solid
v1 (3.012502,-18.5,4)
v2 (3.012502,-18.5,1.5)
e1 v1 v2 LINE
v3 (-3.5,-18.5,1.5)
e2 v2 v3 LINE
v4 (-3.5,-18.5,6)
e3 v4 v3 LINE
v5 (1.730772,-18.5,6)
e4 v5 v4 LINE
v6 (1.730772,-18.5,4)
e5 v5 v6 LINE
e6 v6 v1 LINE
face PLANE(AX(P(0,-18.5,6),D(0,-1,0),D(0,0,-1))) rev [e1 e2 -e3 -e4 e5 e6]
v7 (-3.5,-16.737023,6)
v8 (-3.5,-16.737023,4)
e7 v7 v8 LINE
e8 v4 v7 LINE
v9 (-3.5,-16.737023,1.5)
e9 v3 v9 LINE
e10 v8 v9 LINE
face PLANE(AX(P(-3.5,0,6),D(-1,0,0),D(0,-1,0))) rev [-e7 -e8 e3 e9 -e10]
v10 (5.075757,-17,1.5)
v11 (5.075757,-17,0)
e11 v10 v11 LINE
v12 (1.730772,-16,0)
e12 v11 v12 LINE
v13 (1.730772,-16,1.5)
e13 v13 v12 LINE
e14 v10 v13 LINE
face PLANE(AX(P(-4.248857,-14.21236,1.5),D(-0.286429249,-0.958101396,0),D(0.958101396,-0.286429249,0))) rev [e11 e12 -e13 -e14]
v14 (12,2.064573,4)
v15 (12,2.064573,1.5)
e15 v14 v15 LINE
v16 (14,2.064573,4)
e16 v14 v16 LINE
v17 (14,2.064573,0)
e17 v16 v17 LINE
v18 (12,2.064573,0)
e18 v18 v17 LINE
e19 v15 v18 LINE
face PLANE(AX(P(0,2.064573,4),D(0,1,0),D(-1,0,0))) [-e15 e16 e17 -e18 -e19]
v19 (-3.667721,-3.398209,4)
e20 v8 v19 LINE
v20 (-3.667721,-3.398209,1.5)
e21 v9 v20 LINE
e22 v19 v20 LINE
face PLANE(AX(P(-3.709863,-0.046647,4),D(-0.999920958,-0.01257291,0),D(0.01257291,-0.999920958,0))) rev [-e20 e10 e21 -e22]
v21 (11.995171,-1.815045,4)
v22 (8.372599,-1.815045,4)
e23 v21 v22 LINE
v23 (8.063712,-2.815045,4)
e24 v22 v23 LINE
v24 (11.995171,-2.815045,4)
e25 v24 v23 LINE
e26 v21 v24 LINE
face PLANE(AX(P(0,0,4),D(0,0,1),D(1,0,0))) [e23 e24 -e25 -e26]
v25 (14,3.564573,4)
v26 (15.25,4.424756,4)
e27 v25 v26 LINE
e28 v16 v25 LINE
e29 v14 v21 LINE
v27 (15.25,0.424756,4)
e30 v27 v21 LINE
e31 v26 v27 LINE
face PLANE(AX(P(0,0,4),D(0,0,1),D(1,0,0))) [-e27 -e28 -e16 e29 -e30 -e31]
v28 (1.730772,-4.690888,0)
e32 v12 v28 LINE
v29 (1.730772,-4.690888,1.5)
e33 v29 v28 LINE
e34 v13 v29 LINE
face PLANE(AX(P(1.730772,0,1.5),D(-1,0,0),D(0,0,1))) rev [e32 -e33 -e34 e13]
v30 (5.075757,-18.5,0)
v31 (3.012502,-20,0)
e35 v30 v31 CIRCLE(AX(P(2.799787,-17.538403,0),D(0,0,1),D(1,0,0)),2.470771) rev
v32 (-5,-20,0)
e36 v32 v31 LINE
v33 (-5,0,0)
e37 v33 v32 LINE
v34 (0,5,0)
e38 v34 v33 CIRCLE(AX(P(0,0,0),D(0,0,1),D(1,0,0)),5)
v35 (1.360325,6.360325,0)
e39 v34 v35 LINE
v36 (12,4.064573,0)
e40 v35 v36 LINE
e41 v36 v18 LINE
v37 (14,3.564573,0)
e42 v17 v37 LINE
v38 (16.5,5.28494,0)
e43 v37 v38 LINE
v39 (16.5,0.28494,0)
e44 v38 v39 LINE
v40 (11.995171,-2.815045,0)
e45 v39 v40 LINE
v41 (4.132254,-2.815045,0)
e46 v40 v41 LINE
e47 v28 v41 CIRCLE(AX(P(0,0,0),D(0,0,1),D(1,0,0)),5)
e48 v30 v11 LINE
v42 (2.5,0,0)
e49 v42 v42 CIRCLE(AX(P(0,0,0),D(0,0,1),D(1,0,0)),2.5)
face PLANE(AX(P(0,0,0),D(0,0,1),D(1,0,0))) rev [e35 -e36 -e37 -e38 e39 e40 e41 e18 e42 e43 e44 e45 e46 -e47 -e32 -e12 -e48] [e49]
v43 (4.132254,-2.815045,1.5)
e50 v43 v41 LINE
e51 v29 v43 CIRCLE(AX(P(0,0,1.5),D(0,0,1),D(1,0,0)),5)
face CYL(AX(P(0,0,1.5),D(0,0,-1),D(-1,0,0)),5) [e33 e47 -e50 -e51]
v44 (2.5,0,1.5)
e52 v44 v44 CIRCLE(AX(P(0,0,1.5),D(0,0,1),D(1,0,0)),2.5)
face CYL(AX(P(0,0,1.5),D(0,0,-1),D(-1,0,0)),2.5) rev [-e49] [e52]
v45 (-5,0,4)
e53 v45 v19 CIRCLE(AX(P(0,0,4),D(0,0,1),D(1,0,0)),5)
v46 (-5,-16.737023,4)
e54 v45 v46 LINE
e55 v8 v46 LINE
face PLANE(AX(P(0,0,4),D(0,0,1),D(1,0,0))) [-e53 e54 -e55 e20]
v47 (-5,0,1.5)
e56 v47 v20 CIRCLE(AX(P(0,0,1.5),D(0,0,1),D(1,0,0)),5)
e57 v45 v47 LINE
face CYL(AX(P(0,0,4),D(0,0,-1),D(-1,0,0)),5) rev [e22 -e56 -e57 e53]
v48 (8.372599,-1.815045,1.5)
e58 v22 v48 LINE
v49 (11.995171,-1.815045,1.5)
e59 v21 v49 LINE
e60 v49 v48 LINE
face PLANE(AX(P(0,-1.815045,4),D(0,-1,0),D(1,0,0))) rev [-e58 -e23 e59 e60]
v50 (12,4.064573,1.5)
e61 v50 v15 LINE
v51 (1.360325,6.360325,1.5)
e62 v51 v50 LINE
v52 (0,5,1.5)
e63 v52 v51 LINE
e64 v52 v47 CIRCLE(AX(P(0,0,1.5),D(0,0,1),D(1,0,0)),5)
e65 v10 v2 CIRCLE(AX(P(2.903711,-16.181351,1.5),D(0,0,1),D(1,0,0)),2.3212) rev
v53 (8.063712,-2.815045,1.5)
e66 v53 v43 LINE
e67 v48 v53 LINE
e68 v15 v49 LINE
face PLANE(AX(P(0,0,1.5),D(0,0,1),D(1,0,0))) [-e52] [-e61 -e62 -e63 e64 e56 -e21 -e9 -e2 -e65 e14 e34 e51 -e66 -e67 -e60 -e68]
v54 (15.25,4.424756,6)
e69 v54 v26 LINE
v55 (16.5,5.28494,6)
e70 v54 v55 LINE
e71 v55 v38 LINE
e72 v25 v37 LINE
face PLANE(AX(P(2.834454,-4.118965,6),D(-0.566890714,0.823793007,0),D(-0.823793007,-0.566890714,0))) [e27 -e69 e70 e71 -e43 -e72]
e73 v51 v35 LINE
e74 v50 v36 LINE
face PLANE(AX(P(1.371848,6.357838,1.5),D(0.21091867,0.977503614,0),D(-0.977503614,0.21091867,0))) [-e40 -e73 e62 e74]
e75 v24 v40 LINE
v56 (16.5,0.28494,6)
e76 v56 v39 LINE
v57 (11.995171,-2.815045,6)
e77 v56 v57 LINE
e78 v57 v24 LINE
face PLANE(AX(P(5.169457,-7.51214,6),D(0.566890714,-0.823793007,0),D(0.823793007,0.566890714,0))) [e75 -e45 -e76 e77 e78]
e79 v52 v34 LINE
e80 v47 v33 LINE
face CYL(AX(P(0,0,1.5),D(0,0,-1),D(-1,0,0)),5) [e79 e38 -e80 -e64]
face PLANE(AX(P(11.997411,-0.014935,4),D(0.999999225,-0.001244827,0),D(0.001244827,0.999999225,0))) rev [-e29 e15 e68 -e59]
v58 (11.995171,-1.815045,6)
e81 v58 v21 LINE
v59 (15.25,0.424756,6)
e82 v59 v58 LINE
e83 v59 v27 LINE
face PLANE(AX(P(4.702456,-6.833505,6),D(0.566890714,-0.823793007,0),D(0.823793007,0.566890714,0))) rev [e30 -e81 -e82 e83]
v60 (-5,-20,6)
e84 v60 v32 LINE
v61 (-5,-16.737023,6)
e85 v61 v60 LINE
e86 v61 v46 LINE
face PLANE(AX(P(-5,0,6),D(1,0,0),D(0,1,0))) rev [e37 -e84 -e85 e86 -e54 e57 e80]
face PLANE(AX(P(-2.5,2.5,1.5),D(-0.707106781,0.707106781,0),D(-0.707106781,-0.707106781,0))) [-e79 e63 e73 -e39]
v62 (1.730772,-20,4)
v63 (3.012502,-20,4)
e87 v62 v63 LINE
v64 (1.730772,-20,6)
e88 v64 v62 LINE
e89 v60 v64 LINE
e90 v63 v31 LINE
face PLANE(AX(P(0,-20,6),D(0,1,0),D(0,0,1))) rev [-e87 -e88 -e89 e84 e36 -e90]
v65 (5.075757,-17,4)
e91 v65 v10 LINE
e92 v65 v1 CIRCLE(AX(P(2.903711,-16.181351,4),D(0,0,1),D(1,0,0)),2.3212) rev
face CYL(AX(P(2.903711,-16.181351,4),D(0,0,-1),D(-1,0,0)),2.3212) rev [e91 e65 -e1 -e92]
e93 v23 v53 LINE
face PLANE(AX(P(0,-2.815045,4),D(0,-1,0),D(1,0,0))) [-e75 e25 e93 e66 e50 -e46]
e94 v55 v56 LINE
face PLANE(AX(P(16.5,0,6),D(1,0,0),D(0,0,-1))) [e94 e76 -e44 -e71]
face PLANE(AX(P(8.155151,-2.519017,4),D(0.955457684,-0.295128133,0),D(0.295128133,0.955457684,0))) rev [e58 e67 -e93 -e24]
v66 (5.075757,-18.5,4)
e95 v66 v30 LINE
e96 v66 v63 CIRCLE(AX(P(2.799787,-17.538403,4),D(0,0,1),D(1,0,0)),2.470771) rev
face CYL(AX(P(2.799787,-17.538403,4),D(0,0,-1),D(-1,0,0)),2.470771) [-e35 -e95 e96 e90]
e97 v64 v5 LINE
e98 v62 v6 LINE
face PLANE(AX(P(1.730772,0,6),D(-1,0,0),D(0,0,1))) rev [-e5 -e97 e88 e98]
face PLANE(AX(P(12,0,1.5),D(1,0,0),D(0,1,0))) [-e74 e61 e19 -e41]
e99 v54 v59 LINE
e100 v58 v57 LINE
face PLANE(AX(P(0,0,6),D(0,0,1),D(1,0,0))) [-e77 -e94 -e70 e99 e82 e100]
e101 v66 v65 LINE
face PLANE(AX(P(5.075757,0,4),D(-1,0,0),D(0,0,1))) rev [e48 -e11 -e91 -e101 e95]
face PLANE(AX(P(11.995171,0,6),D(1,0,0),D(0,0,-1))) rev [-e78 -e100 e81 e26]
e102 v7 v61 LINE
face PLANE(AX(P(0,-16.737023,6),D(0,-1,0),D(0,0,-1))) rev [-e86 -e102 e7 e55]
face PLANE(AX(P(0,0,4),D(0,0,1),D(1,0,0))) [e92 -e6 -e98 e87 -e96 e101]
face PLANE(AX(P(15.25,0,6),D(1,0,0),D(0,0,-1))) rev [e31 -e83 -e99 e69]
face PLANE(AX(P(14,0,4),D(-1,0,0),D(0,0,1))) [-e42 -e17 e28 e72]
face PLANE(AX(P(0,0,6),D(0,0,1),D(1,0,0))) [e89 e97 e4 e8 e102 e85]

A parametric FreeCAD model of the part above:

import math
import FreeCAD as App
import Part
import Sketcher
from FreeCAD import Vector
Q = App.Units.Quantity

doc = App.newDocument("Part")
params = doc.addObject("Spreadsheet::Sheet", "Params")
for row, (alias, value) in enumerate([
    ("sketch1_width", "1.5 mm"),
    ("pad1_length", "6 mm"),
    ("sketch2_height", "1 mm"),
    ("sketch2_height2", "5 mm"),
    ("pad2_length", "6 mm"),
    ("sketch3_radius", "5 mm"),
    ("sketch3_width", "2 mm"),
    ("sketch3_height", "4 mm"),
    ("sketch3_height2", "1 mm"),
    ("sketch3_width2", "1.5 mm"),
    ("pad3_length", "4 mm"),
    ("sketch4_diameter", "5 mm"),
    ("sketch4_radius", "5 mm"),
    ("sketch4_height", "2 mm"),
    ("pad4_length", "1.5 mm"),
], start=1):
    params.set(f"A{row}", alias)
    params.set(f"B{row}", "=" + value)
    params.setAlias(f"B{row}", alias)

body = doc.addObject("PartDesign::Body", "Body")

sketch1 = doc.addObject("Sketcher::SketchObject", "Sketch")
body.addObject(sketch1)
sketch1.AttachmentSupport = (doc.XY_Plane, [""])
sketch1.MapMode = "FlatFace"
sketch1.addGeometry([
    Part.LineSegment(Vector(-3.5, -16.7, 0), Vector(-5, -16.7, 0)),
    Part.LineSegment(Vector(-5, -16.7, 0), Vector(-5, -20, 0)),
    Part.LineSegment(Vector(-5, -20, 0), Vector(1.7, -20, 0)),
    Part.LineSegment(Vector(1.7, -20, 0), Vector(1.7, -18.5, 0)),
    Part.LineSegment(Vector(1.7, -18.5, 0), Vector(-3.5, -18.5, 0)),
    Part.LineSegment(Vector(-3.5, -18.5, 0), Vector(-3.5, -16.7, 0)),
], False)
sketch1.addConstraint([
    Sketcher.Constraint("Coincident", 0, 2, 1, 1),
    Sketcher.Constraint("Coincident", 1, 2, 2, 1),
    Sketcher.Constraint("Coincident", 2, 2, 3, 1),
    Sketcher.Constraint("Coincident", 3, 2, 4, 1),
    Sketcher.Constraint("Coincident", 4, 2, 5, 1),
    Sketcher.Constraint("Coincident", 5, 2, 0, 1),
    Sketcher.Constraint("Horizontal", 0),
    Sketcher.Constraint("Vertical", 1),
    Sketcher.Constraint("Horizontal", 2),
    Sketcher.Constraint("Vertical", 3),
    Sketcher.Constraint("Horizontal", 4),
    Sketcher.Constraint("Vertical", 5),
    Sketcher.Constraint("Equal", 0, 3),
    Sketcher.Constraint("DistanceX", 0, 2, 0, 1, Q("1.5 mm")),
    Sketcher.Constraint("DistanceX", 0, 2, -1, 1, Q("5 mm")),
    Sketcher.Constraint("DistanceY", 1, 2, -1, 1, Q("20 mm")),
    Sketcher.Constraint("DistanceX", 2, 1, 2, 2, Q("6.730772 mm")),
    Sketcher.Constraint("DistanceY", 1, 2, 1, 1, Q("3.262977 mm")),
])
sketch1.setExpression("Constraints[13]", "Params.sketch1_width")
pad1 = doc.addObject("PartDesign::Pad", "Pad")
body.addObject(pad1)
pad1.Profile = sketch1
pad1.setExpression("Length", "Params.pad1_length")
body2 = doc.addObject("PartDesign::Body", "Body001")

sketch2 = doc.addObject("Sketcher::SketchObject", "Sketch001")
body2.addObject(sketch2)
sketch2.AttachmentSupport = (doc.getObject("XY_Plane001"), [""])
sketch2.MapMode = "FlatFace"
sketch2.addGeometry([
    Part.LineSegment(Vector(15.2, 0.4, 0), Vector(12, -1.8, 0)),
    Part.LineSegment(Vector(12, -1.8, 0), Vector(12, -2.8, 0)),
    Part.LineSegment(Vector(12, -2.8, 0), Vector(16.5, 0.3, 0)),
    Part.LineSegment(Vector(16.5, 0.3, 0), Vector(16.5, 5.3, 0)),
    Part.LineSegment(Vector(16.5, 5.3, 0), Vector(15.2, 4.4, 0)),
    Part.LineSegment(Vector(15.2, 4.4, 0), Vector(15.2, 0.4, 0)),
], False)
sketch2.addConstraint([
    Sketcher.Constraint("Coincident", 0, 2, 1, 1),
    Sketcher.Constraint("Coincident", 1, 2, 2, 1),
    Sketcher.Constraint("Coincident", 2, 2, 3, 1),
    Sketcher.Constraint("Coincident", 3, 2, 4, 1),
    Sketcher.Constraint("Coincident", 4, 2, 5, 1),
    Sketcher.Constraint("Coincident", 5, 2, 0, 1),
    Sketcher.Constraint("Vertical", 1),
    Sketcher.Constraint("Vertical", 3),
    Sketcher.Constraint("Vertical", 5),
    Sketcher.Constraint("Parallel", 0, 2),
    Sketcher.Constraint("Parallel", 2, 4),
    Sketcher.Constraint("DistanceY", 1, 2, 1, 1, Q("1 mm")),
    Sketcher.Constraint("DistanceY", 3, 1, 3, 2, Q("5 mm")),
    Sketcher.Constraint("DistanceX", -1, 1, 2, 2, Q("16.5 mm")),
    Sketcher.Constraint("DistanceX", -1, 1, 4, 2, Q("15.25 mm")),
    Sketcher.Constraint("Distance", 2, Q("5.4684 mm")),
    Sketcher.Constraint("DistanceY", 0, 2, 4, 2, Q("6.239801 mm")),
    Sketcher.Constraint("DistanceY", -1, 1, 2, 2, Q("0.28494 mm")),
])
sketch2.setExpression("Constraints[11]", "Params.sketch2_height")
sketch2.setExpression("Constraints[12]", "Params.sketch2_height2")
pad2 = doc.addObject("PartDesign::Pad", "Pad001")
body2.addObject(pad2)
pad2.Profile = sketch2
pad2.setExpression("Length", "Params.pad2_length")
body.AllowCompound = True
doc.recompute()

boolean = doc.addObject("PartDesign::Boolean", "Boolean")
body.addObject(boolean)
boolean.Type = "Fuse"
boolean.addObjects([body2])

sketch3 = doc.addObject("Sketcher::SketchObject", "Sketch002")
body.addObject(sketch3)
sketch3.AttachmentSupport = (doc.XY_Plane, [""])
sketch3.MapMode = "FlatFace"
sketch3.addGeometry([
    Part.ArcOfCircle(Part.Circle(Vector(0, 0, 0), Vector(0, 0, 1), 5), math.radians(180), math.radians(223)),
    Part.LineSegment(Vector(-5, 0, 0), Vector(-5, -16.7, 0)),
    Part.LineSegment(Vector(-5, -16.7, 0), Vector(-3.5, -16.7, 0)),
    Part.LineSegment(Vector(-3.5, -16.7, 0), Vector(-3.7, -3.4, 0)),
    Part.LineSegment(Vector(1.7, -18.5, 0), Vector(1.7, -20, 0)),
    Part.LineSegment(Vector(1.7, -20, 0), Vector(3, -20, 0)),
    Part.ArcOfCircle(Part.Circle(Vector(2.8, -17.5, 0), Vector(0, 0, 1), 2.5), math.radians(-85), math.radians(-23)),
    Part.LineSegment(Vector(5.1, -18.5, 0), Vector(5.1, -17, 0)),
    Part.ArcOfCircle(Part.Circle(Vector(2.9, -16.2, 0), Vector(0, 0, 1), 2.3), math.radians(-87), math.radians(-21)),
    Part.LineSegment(Vector(3, -18.5, 0), Vector(1.7, -18.5, 0)),
    Part.LineSegment(Vector(14, 2.1, 0), Vector(12, 2.1, 0)),
    Part.LineSegment(Vector(12, 2.1, 0), Vector(12, -1.8, 0)),
    Part.LineSegment(Vector(12, -1.8, 0), Vector(15.2, 0.4, 0)),
    Part.LineSegment(Vector(15.2, 0.4, 0), Vector(15.2, 4.4, 0)),
    Part.LineSegment(Vector(15.2, 4.4, 0), Vector(14, 3.6, 0)),
    Part.LineSegment(Vector(14, 3.6, 0), Vector(14, 2.1, 0)),
    Part.LineSegment(Vector(8.4, -1.8, 0), Vector(8.1, -2.8, 0)),
    Part.LineSegment(Vector(8.1, -2.8, 0), Vector(12, -2.8, 0)),
    Part.LineSegment(Vector(12, -2.8, 0), Vector(12, -1.8, 0)),
    Part.LineSegment(Vector(12, -1.8, 0), Vector(8.4, -1.8, 0)),
], False)
sketch3.addConstraint([
    Sketcher.Constraint("Tangent", 0, 1, 1, 1),
    Sketcher.Constraint("Coincident", 1, 2, 2, 1),
    Sketcher.Constraint("Coincident", 2, 2, 3, 1),
    Sketcher.Constraint("Coincident", 3, 2, 0, 2),
    Sketcher.Constraint("Coincident", 4, 2, 5, 1),
    Sketcher.Constraint("Coincident", 5, 2, 6, 1),
    Sketcher.Constraint("Coincident", 6, 2, 7, 1),
    Sketcher.Constraint("Coincident", 7, 2, 8, 2),
    Sketcher.Constraint("Coincident", 8, 1, 9, 1),
    Sketcher.Constraint("Coincident", 9, 2, 4, 1),
    Sketcher.Constraint("Coincident", 10, 2, 11, 1),
    Sketcher.Constraint("Coincident", 11, 2, 12, 1),
    Sketcher.Constraint("Coincident", 12, 2, 13, 1),
    Sketcher.Constraint("Coincident", 13, 2, 14, 1),
    Sketcher.Constraint("Coincident", 14, 2, 15, 1),
    Sketcher.Constraint("Coincident", 15, 2, 10, 1),
    Sketcher.Constraint("Coincident", 16, 2, 17, 1),
    Sketcher.Constraint("Coincident", 17, 2, 18, 1),
    Sketcher.Constraint("Coincident", 18, 2, 19, 1),
    Sketcher.Constraint("Coincident", 19, 2, 16, 1),
    Sketcher.Constraint("Vertical", 1),
    Sketcher.Constraint("Horizontal", 2),
    Sketcher.Constraint("Vertical", 4),
    Sketcher.Constraint("Horizontal", 5),
    Sketcher.Constraint("Vertical", 7),
    Sketcher.Constraint("Horizontal", 9),
    Sketcher.Constraint("Horizontal", 10),
    Sketcher.Constraint("Vertical", 13),
    Sketcher.Constraint("Vertical", 15),
    Sketcher.Constraint("Horizontal", 17),
    Sketcher.Constraint("Vertical", 18),
    Sketcher.Constraint("Horizontal", 19),
    Sketcher.Constraint("Coincident", 0, 3, -1, 1),
    Sketcher.Constraint("Coincident", 18, 2, 11, 2),
    Sketcher.Constraint("Parallel", 12, 14),
    Sketcher.Constraint("Horizontal", 6, 2, 8, 1),
    Sketcher.Constraint("Vertical", 5, 2, 8, 1),
    Sketcher.Constraint("Equal", 2, 4),
    Sketcher.Constraint("Equal", 4, 7),
    Sketcher.Constraint("Equal", 7, 15),
    Sketcher.Constraint("Radius", 0, Q("5 mm")),
    Sketcher.Constraint("DistanceX", 10, 2, 10, 1, Q("2 mm")),
    Sketcher.Constraint("DistanceY", 13, 1, 13, 2, Q("4 mm")),
    Sketcher.Constraint("DistanceY", 18, 1, 18, 2, Q("1 mm")),
    Sketcher.Constraint("DistanceX", 2, 1, 2, 2, Q("1.5 mm")),
    Sketcher.Constraint("DistanceY", 4, 2, -1, 1, Q("20 mm")),
    Sketcher.Constraint("DistanceX", -1, 1, 10, 2, Q("12 mm")),
    Sketcher.Constraint("Radius", 8, Q("2.3212 mm")),
    Sketcher.Constraint("DistanceX", -1, 1, 12, 2, Q("15.25 mm")),
    Sketcher.Constraint("Radius", 6, Q("2.470771 mm")),
    Sketcher.Constraint("DistanceX", 5, 1, 5, 2, Q("1.28173 mm")),
    Sketcher.Constraint("DistanceX", 17, 1, 17, 2, Q("3.931458 mm")),
    Sketcher.Constraint("DistanceX", 19, 2, 19, 1, Q("3.622572 mm")),
    Sketcher.Constraint("DistanceX", -1, 1, 5, 2, Q("3.012502 mm")),
    Sketcher.Constraint("DistanceX", -1, 1, 19, 2, Q("8.372599 mm")),
    Sketcher.Constraint("DistanceY", 11, 2, 12, 2, Q("2.239801 mm")),
    Sketcher.Constraint("Distance", 3, Q("13.339869 mm")),
    Sketcher.Constraint("DistanceY", 1, 2, 1, 1, Q("16.737023 mm")),
    Sketcher.Constraint("DistanceX", -1, 1, 8, 3, Q("2.903711 mm")),
    Sketcher.Constraint("DistanceY", 3, 2, 10, 2, Q("5.462781 mm")),
])
sketch3.setExpression("Constraints[40]", "Params.sketch3_radius")
sketch3.setExpression("Constraints[41]", "Params.sketch3_width")
sketch3.setExpression("Constraints[42]", "Params.sketch3_height")
sketch3.setExpression("Constraints[43]", "Params.sketch3_height2")
sketch3.setExpression("Constraints[44]", "Params.sketch3_width2")
pad3 = doc.addObject("PartDesign::Pad", "Pad002")
body.addObject(pad3)
pad3.Profile = sketch3
pad3.setExpression("Length", "Params.pad3_length")

sketch4 = doc.addObject("Sketcher::SketchObject", "Sketch003")
body.addObject(sketch4)
sketch4.AttachmentSupport = (doc.XY_Plane, [""])
sketch4.MapMode = "FlatFace"
sketch4.addGeometry([
    Part.ArcOfCircle(Part.Circle(Vector(0, 0, 0), Vector(0, 0, 1), 5), math.radians(90), math.radians(223)),
    Part.LineSegment(Vector(-3.7, -3.4, 0), Vector(-3.5, -16.7, 0)),
    Part.LineSegment(Vector(-3.5, -16.7, 0), Vector(-3.5, -18.5, 0)),
    Part.LineSegment(Vector(-3.5, -18.5, 0), Vector(3, -18.5, 0)),
    Part.ArcOfCircle(Part.Circle(Vector(2.9, -16.2, 0), Vector(0, 0, 1), 2.3), math.radians(-87), math.radians(-21)),
    Part.LineSegment(Vector(5.1, -17, 0), Vector(1.7, -16, 0)),
    Part.LineSegment(Vector(1.7, -16, 0), Vector(1.7, -4.7, 0)),
    Part.ArcOfCircle(Part.Circle(Vector(0, 0, 0), Vector(0, 0, 1), 5), math.radians(-70), math.radians(-34)),
    Part.LineSegment(Vector(4.1, -2.8, 0), Vector(8.1, -2.8, 0)),
    Part.LineSegment(Vector(8.1, -2.8, 0), Vector(8.4, -1.8, 0)),
    Part.LineSegment(Vector(8.4, -1.8, 0), Vector(12, -1.8, 0)),
    Part.LineSegment(Vector(12, -1.8, 0), Vector(12, 2.1, 0)),
    Part.LineSegment(Vector(12, 2.1, 0), Vector(12, 4.1, 0)),
    Part.LineSegment(Vector(12, 4.1, 0), Vector(1.4, 6.4, 0)),
    Part.LineSegment(Vector(1.4, 6.4, 0), Vector(0, 5, 0)),
    Part.Circle(Vector(0, 0, 0), Vector(0, 0, 1), 2.5),
], False)
sketch4.addConstraint([
    Sketcher.Constraint("Coincident", 0, 2, 1, 1),
    Sketcher.Constraint("Coincident", 1, 2, 2, 1),
    Sketcher.Constraint("Coincident", 2, 2, 3, 1),
    Sketcher.Constraint("Coincident", 3, 2, 4, 1),
    Sketcher.Constraint("Coincident", 4, 2, 5, 1),
    Sketcher.Constraint("Coincident", 5, 2, 6, 1),
    Sketcher.Constraint("Coincident", 6, 2, 7, 1),
    Sketcher.Constraint("Coincident", 7, 2, 8, 1),
    Sketcher.Constraint("Coincident", 8, 2, 9, 1),
    Sketcher.Constraint("Coincident", 9, 2, 10, 1),
    Sketcher.Constraint("Coincident", 10, 2, 11, 1),
    Sketcher.Constraint("Coincident", 11, 2, 12, 1),
    Sketcher.Constraint("Coincident", 12, 2, 13, 1),
    Sketcher.Constraint("Coincident", 13, 2, 14, 1),
    Sketcher.Constraint("Coincident", 14, 2, 0, 1),
    Sketcher.Constraint("Vertical", 2),
    Sketcher.Constraint("Horizontal", 3),
    Sketcher.Constraint("Vertical", 6),
    Sketcher.Constraint("Horizontal", 8),
    Sketcher.Constraint("Horizontal", 10),
    Sketcher.Constraint("Vertical", 12),
    Sketcher.Constraint("Coincident", 0, 3, -1, 1),
    Sketcher.Constraint("Coincident", 7, 3, -1, 1),
    Sketcher.Constraint("Coincident", 15, 3, -1, 1),
    Sketcher.Constraint("Equal", 0, 7),
    Sketcher.Constraint("PointOnObject", 14, 2, -2),
    Sketcher.Constraint("Diameter", 15, Q("5 mm")),
    Sketcher.Constraint("Radius", 0, Q("5 mm")),
    Sketcher.Constraint("DistanceY", 12, 1, 12, 2, Q("2 mm")),
    Sketcher.Constraint("Angle", 14, Q("-135 deg")),
    Sketcher.Constraint("DistanceY", 4, 2, -1, 1, Q("17 mm")),
    Sketcher.Constraint("DistanceY", 5, 2, -1, 1, Q("16 mm")),
    Sketcher.Constraint("DistanceX", -1, 1, 11, 2, Q("12 mm")),
    Sketcher.Constraint("DistanceY", 8, 2, 9, 2, Q("1 mm")),
    Sketcher.Constraint("DistanceX", 1, 2, -1, 1, Q("3.5 mm")),
    Sketcher.Constraint("DistanceY", 2, 2, -1, 1, Q("18.5 mm")),
    Sketcher.Constraint("Radius", 4, Q("2.3212 mm")),
    Sketcher.Constraint("DistanceX", 3, 1, 3, 2, Q("6.512502 mm")),
    Sketcher.Constraint("DistanceX", 8, 1, 8, 2, Q("3.931458 mm")),
    Sketcher.Constraint("DistanceX", 10, 1, 10, 2, Q("3.622572 mm")),
    Sketcher.Constraint("DistanceX", -1, 1, 9, 2, Q("8.372599 mm")),
    Sketcher.Constraint("DistanceX", 6, 2, 10, 2, Q("10.264398 mm")),
    Sketcher.Constraint("Distance", 1, Q("13.339869 mm")),
    Sketcher.Constraint("Distance", 9, Q("1.046619 mm")),
    Sketcher.Constraint("Distance", 11, Q("3.87962 mm")),
    Sketcher.Constraint("Distance", 14, Q("1.92379 mm")),
    Sketcher.Constraint("DistanceY", 2, 2, 2, 1, Q("1.762977 mm")),
    Sketcher.Constraint("DistanceX", -1, 1, 4, 3, Q("2.903711 mm")),
])
sketch4.setExpression("Constraints[26]", "Params.sketch4_diameter")
sketch4.setExpression("Constraints[27]", "Params.sketch4_radius")
sketch4.setExpression("Constraints[28]", "Params.sketch4_height")
pad4 = doc.addObject("PartDesign::Pad", "Pad003")
body.addObject(pad4)
pad4.Profile = sketch4
pad4.setExpression("Length", "Params.pad4_length")

doc.recompute()
